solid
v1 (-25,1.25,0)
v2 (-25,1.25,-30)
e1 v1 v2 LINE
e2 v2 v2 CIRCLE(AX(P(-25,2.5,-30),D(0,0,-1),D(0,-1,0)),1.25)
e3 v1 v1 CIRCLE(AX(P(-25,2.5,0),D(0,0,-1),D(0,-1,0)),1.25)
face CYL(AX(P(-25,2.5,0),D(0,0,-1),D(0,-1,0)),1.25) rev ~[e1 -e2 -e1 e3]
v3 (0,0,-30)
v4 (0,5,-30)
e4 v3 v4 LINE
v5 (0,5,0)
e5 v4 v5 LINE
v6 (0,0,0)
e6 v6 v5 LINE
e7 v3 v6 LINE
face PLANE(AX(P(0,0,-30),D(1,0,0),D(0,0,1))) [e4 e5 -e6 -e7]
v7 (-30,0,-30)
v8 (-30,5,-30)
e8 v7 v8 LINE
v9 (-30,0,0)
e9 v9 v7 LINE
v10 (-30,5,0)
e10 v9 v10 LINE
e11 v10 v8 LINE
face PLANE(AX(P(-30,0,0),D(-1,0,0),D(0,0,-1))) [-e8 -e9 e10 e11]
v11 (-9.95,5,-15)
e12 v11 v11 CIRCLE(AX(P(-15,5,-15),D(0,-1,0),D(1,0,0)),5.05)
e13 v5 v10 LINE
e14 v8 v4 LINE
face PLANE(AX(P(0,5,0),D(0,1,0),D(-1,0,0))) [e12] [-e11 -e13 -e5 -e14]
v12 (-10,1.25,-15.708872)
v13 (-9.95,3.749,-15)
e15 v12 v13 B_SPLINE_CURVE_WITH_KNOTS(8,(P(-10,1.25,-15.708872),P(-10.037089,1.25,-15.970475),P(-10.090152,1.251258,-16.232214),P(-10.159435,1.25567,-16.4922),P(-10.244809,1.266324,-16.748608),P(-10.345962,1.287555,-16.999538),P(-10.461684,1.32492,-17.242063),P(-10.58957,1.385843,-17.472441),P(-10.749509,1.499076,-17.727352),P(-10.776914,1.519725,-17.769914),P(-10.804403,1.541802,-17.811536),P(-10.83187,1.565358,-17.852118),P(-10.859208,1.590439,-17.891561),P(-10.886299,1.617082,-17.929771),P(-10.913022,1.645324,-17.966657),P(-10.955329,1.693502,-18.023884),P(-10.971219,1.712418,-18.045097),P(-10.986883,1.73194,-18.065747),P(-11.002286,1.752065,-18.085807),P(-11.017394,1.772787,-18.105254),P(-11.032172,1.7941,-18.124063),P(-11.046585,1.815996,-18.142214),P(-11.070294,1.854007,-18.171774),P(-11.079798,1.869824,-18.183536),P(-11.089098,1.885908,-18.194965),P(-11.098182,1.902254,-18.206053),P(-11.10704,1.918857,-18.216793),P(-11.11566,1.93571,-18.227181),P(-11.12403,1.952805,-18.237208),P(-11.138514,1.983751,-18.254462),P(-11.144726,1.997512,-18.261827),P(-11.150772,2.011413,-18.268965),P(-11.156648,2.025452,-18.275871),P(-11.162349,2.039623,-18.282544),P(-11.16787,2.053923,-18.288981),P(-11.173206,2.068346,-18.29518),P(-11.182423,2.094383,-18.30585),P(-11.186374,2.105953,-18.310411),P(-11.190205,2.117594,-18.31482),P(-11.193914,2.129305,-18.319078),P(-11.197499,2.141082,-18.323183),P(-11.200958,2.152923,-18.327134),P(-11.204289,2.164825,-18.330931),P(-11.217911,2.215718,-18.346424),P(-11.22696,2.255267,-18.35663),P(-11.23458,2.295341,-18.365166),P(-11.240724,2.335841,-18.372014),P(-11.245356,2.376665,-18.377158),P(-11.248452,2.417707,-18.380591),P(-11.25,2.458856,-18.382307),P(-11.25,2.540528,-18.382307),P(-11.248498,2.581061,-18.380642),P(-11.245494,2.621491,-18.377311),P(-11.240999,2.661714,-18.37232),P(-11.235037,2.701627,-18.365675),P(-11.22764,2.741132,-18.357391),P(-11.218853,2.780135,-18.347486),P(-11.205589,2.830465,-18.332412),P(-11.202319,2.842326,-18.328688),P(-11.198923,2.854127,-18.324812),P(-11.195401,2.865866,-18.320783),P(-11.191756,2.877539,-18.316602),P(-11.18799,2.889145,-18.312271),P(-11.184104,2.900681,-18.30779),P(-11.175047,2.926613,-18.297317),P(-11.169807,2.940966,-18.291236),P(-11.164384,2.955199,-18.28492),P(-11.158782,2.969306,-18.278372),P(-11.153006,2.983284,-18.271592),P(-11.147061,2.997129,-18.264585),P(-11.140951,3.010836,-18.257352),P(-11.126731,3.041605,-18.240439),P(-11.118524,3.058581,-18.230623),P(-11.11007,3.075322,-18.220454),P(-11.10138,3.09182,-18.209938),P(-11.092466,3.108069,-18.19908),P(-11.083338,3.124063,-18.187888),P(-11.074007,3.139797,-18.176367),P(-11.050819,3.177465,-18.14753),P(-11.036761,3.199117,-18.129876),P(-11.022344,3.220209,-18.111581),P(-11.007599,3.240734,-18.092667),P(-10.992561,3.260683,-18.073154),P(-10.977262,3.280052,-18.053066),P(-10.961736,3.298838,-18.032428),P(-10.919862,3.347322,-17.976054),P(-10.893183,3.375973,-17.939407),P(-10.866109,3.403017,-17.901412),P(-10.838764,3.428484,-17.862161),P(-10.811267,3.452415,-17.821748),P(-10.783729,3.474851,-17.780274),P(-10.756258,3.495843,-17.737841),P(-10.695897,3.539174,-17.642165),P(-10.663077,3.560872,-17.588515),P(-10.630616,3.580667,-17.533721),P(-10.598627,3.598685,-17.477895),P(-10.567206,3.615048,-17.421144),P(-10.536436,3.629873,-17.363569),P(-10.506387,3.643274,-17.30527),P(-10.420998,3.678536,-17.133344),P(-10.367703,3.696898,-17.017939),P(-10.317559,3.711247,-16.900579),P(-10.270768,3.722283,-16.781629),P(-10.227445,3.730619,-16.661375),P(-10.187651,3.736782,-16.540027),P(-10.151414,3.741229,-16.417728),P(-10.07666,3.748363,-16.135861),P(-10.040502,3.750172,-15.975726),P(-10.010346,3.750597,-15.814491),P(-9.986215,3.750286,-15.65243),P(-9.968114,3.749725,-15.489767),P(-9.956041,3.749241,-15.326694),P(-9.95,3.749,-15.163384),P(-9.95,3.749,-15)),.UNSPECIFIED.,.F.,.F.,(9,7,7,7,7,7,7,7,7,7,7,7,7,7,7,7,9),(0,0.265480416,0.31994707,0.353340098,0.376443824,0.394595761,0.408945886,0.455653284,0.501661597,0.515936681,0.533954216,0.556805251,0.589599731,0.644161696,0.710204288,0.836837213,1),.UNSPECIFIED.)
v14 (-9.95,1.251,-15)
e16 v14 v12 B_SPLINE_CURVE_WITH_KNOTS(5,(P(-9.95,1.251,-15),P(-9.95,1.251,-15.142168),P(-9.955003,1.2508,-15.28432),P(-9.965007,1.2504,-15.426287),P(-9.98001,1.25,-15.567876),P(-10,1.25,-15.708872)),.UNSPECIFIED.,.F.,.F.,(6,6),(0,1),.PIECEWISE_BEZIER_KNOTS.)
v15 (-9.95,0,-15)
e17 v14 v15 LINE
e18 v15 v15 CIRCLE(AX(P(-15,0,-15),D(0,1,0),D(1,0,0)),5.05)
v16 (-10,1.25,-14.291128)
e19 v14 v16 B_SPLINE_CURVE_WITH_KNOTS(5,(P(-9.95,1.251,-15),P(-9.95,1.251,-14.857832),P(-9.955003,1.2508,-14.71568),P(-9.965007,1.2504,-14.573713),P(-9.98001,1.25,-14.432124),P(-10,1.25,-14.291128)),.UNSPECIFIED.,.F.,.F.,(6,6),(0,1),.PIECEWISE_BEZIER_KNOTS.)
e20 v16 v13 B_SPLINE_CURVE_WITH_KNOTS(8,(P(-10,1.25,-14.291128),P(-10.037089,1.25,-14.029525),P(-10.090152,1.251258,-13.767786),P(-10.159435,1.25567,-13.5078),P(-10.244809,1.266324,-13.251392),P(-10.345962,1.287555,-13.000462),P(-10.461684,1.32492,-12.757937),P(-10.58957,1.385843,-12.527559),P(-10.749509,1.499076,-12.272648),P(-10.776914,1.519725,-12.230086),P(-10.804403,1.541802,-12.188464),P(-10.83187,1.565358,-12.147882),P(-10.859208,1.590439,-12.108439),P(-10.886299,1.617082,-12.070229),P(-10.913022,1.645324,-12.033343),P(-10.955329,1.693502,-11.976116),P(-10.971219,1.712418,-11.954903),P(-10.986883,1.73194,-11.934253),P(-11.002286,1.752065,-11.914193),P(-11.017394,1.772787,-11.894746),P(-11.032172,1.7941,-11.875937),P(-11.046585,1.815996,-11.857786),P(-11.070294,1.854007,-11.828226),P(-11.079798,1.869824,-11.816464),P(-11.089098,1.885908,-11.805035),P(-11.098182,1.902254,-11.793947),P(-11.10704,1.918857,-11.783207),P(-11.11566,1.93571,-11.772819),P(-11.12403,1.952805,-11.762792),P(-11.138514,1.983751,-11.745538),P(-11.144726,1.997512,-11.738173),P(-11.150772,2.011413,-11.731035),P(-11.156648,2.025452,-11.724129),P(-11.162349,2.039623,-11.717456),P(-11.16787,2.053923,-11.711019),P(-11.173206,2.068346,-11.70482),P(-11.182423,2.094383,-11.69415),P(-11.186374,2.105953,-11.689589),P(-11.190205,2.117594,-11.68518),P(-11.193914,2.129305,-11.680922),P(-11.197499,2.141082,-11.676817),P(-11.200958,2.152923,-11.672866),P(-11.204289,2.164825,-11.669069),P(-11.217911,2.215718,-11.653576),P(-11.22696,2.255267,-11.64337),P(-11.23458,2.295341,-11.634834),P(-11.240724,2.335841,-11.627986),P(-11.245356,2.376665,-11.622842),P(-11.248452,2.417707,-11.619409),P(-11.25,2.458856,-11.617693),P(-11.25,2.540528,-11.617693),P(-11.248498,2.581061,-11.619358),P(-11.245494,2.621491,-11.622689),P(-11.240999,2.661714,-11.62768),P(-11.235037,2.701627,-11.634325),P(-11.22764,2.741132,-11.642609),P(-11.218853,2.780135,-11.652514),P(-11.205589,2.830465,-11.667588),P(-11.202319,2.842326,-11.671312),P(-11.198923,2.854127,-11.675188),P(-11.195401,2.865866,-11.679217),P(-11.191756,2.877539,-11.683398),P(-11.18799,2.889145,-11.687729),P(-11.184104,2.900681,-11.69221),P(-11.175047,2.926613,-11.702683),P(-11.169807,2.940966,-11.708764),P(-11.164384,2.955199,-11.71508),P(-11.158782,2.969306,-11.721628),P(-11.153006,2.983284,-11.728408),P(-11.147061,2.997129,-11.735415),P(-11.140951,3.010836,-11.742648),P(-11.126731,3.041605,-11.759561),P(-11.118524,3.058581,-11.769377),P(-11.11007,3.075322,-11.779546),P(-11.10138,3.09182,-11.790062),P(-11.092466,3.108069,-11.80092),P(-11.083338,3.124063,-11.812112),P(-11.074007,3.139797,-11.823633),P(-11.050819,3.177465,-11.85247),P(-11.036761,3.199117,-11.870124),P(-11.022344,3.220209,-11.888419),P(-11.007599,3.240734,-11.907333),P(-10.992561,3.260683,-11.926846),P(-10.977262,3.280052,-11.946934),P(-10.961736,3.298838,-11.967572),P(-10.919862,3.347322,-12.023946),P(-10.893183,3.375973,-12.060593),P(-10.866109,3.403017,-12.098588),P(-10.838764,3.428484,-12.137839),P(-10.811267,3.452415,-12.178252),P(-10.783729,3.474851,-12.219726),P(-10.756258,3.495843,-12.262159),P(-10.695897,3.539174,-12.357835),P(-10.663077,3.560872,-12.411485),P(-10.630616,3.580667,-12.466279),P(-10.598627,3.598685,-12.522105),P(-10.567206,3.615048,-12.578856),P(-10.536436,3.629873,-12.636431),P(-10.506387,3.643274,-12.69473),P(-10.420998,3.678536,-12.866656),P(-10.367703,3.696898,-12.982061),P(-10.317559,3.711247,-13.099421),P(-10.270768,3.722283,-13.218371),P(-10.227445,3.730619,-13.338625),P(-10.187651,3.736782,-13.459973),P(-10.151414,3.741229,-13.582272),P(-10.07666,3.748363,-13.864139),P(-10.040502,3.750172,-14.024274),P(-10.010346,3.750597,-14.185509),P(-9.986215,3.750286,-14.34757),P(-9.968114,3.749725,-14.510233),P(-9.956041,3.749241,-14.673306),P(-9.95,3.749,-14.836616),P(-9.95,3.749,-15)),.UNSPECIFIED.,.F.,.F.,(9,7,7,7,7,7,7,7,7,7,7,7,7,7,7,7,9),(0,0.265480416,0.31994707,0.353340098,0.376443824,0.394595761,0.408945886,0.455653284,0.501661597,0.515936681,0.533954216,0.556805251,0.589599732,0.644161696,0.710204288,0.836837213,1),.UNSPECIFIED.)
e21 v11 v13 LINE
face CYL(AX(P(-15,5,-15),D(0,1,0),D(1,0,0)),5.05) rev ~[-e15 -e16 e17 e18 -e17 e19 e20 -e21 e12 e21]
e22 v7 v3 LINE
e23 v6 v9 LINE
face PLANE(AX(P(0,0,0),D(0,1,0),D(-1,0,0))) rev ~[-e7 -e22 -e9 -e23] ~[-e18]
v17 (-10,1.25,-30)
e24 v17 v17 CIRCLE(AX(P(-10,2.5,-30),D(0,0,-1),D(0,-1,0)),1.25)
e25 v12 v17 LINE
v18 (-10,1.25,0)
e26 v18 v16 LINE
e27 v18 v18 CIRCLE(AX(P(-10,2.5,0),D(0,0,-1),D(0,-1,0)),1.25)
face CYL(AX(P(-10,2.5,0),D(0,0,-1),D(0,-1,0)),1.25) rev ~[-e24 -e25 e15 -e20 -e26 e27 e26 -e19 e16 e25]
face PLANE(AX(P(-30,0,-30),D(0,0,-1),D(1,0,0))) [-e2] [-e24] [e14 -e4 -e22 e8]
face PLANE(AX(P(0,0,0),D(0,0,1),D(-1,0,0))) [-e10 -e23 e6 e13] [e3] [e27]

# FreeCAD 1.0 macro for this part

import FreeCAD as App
import Part
import Sketcher

V = App.Vector
Q = App.Units.Quantity

doc = App.newDocument("Part")
body = doc.addObject("PartDesign::Body", "Body")

# Sketch on XZ plane
sketch1 = body.newObject("Sketcher::SketchObject", "Sketch")
sketch1.AttachmentSupport = (doc.getObject("XZ_Plane"), [""])
sketch1.MapMode = "FlatFace"
sketch1.addGeometry([
    Part.LineSegment(V(-30, 0, 0), V(0, 0, 0)),
    Part.LineSegment(V(0, 0, 0), V(0, -30, 0)),
    Part.LineSegment(V(0, -30, 0), V(-30, -30, 0)),
    Part.LineSegment(V(-30, -30, 0), V(-30, 0, 0)),
], False)
sketch1.addConstraint([
    Sketcher.Constraint("Coincident", 0, 2, 1, 1),
    Sketcher.Constraint("Coincident", 1, 2, 2, 1),
    Sketcher.Constraint("Coincident", 2, 2, 3, 1),
    Sketcher.Constraint("Coincident", 3, 2, 0, 1),
    Sketcher.Constraint("Horizontal", 0),
    Sketcher.Constraint("Vertical", 1),
    Sketcher.Constraint("Horizontal", 2),
    Sketcher.Constraint("Vertical", 3),
    Sketcher.Constraint("Coincident", 0, 2, -1, 1),
    Sketcher.Constraint("Equal", 2, 1),
    Sketcher.Constraint("DistanceX", 0, 1, 0, 2, Q("30 mm")),
])
pad1 = body.newObject("PartDesign::Pad", "Pad")
pad1.Profile = sketch1
pad1.Length = 5
pad1.Reversed = True

# Sketch on XY plane
sketch2 = body.newObject("Sketcher::SketchObject", "Sketch001")
sketch2.AttachmentSupport = (doc.getObject("XY_Plane"), [""])
sketch2.MapMode = "FlatFace"
sketch2.addGeometry([
    Part.Circle(V(-25, 2.5, 0), V(0, 0, 1), 1.2),
    Part.Circle(V(-10, 2.5, 0), V(0, 0, 1), 1.2),
], False)
sketch2.addConstraint([
    Sketcher.Constraint("Equal", 0, 1),
    Sketcher.Constraint("Horizontal", 0, 3, 1, 3),
    Sketcher.Constraint("Diameter", 0, Q("2.5 mm")),
    Sketcher.Constraint("DistanceX", 0, 3, -1, 1, Q("25 mm")),
    Sketcher.Constraint("DistanceX", 1, 3, -1, 1, Q("10 mm")),
    Sketcher.Constraint("DistanceY", -1, 1, 0, 3, Q("2.5 mm")),
])
doc.recompute()
hole = body.newObject("PartDesign::Hole", "Hole")
hole.Profile = sketch2
hole.ThreadType = "None"
hole.Diameter = 2.5
hole.DepthType = "ThroughAll"

# Sketch on XZ plane
sketch3 = body.newObject("Sketcher::SketchObject", "Sketch002")
sketch3.AttachmentSupport = (doc.getObject("XZ_Plane"), [""])
sketch3.MapMode = "FlatFace"
sketch3.AttachmentOffset = App.Placement(V(0, 0, -5), App.Rotation())
sketch3.addGeometry(Part.Circle(V(-15, -15, 0), V(0, 0, 1), 5), False)
sketch3.addConstraint([
    Sketcher.Constraint("Diameter", 0, Q("10.1 mm")),
    Sketcher.Constraint("DistanceX", 0, 3, -1, 1, Q("15 mm")),
    Sketcher.Constraint("DistanceY", 0, 3, -1, 1, Q("15 mm")),
])
pocket1 = body.newObject("PartDesign::Pocket", "Pocket")
pocket1.Profile = sketch3
pocket1.Length = 5
pocket1.Reversed = True

doc.recompute()
